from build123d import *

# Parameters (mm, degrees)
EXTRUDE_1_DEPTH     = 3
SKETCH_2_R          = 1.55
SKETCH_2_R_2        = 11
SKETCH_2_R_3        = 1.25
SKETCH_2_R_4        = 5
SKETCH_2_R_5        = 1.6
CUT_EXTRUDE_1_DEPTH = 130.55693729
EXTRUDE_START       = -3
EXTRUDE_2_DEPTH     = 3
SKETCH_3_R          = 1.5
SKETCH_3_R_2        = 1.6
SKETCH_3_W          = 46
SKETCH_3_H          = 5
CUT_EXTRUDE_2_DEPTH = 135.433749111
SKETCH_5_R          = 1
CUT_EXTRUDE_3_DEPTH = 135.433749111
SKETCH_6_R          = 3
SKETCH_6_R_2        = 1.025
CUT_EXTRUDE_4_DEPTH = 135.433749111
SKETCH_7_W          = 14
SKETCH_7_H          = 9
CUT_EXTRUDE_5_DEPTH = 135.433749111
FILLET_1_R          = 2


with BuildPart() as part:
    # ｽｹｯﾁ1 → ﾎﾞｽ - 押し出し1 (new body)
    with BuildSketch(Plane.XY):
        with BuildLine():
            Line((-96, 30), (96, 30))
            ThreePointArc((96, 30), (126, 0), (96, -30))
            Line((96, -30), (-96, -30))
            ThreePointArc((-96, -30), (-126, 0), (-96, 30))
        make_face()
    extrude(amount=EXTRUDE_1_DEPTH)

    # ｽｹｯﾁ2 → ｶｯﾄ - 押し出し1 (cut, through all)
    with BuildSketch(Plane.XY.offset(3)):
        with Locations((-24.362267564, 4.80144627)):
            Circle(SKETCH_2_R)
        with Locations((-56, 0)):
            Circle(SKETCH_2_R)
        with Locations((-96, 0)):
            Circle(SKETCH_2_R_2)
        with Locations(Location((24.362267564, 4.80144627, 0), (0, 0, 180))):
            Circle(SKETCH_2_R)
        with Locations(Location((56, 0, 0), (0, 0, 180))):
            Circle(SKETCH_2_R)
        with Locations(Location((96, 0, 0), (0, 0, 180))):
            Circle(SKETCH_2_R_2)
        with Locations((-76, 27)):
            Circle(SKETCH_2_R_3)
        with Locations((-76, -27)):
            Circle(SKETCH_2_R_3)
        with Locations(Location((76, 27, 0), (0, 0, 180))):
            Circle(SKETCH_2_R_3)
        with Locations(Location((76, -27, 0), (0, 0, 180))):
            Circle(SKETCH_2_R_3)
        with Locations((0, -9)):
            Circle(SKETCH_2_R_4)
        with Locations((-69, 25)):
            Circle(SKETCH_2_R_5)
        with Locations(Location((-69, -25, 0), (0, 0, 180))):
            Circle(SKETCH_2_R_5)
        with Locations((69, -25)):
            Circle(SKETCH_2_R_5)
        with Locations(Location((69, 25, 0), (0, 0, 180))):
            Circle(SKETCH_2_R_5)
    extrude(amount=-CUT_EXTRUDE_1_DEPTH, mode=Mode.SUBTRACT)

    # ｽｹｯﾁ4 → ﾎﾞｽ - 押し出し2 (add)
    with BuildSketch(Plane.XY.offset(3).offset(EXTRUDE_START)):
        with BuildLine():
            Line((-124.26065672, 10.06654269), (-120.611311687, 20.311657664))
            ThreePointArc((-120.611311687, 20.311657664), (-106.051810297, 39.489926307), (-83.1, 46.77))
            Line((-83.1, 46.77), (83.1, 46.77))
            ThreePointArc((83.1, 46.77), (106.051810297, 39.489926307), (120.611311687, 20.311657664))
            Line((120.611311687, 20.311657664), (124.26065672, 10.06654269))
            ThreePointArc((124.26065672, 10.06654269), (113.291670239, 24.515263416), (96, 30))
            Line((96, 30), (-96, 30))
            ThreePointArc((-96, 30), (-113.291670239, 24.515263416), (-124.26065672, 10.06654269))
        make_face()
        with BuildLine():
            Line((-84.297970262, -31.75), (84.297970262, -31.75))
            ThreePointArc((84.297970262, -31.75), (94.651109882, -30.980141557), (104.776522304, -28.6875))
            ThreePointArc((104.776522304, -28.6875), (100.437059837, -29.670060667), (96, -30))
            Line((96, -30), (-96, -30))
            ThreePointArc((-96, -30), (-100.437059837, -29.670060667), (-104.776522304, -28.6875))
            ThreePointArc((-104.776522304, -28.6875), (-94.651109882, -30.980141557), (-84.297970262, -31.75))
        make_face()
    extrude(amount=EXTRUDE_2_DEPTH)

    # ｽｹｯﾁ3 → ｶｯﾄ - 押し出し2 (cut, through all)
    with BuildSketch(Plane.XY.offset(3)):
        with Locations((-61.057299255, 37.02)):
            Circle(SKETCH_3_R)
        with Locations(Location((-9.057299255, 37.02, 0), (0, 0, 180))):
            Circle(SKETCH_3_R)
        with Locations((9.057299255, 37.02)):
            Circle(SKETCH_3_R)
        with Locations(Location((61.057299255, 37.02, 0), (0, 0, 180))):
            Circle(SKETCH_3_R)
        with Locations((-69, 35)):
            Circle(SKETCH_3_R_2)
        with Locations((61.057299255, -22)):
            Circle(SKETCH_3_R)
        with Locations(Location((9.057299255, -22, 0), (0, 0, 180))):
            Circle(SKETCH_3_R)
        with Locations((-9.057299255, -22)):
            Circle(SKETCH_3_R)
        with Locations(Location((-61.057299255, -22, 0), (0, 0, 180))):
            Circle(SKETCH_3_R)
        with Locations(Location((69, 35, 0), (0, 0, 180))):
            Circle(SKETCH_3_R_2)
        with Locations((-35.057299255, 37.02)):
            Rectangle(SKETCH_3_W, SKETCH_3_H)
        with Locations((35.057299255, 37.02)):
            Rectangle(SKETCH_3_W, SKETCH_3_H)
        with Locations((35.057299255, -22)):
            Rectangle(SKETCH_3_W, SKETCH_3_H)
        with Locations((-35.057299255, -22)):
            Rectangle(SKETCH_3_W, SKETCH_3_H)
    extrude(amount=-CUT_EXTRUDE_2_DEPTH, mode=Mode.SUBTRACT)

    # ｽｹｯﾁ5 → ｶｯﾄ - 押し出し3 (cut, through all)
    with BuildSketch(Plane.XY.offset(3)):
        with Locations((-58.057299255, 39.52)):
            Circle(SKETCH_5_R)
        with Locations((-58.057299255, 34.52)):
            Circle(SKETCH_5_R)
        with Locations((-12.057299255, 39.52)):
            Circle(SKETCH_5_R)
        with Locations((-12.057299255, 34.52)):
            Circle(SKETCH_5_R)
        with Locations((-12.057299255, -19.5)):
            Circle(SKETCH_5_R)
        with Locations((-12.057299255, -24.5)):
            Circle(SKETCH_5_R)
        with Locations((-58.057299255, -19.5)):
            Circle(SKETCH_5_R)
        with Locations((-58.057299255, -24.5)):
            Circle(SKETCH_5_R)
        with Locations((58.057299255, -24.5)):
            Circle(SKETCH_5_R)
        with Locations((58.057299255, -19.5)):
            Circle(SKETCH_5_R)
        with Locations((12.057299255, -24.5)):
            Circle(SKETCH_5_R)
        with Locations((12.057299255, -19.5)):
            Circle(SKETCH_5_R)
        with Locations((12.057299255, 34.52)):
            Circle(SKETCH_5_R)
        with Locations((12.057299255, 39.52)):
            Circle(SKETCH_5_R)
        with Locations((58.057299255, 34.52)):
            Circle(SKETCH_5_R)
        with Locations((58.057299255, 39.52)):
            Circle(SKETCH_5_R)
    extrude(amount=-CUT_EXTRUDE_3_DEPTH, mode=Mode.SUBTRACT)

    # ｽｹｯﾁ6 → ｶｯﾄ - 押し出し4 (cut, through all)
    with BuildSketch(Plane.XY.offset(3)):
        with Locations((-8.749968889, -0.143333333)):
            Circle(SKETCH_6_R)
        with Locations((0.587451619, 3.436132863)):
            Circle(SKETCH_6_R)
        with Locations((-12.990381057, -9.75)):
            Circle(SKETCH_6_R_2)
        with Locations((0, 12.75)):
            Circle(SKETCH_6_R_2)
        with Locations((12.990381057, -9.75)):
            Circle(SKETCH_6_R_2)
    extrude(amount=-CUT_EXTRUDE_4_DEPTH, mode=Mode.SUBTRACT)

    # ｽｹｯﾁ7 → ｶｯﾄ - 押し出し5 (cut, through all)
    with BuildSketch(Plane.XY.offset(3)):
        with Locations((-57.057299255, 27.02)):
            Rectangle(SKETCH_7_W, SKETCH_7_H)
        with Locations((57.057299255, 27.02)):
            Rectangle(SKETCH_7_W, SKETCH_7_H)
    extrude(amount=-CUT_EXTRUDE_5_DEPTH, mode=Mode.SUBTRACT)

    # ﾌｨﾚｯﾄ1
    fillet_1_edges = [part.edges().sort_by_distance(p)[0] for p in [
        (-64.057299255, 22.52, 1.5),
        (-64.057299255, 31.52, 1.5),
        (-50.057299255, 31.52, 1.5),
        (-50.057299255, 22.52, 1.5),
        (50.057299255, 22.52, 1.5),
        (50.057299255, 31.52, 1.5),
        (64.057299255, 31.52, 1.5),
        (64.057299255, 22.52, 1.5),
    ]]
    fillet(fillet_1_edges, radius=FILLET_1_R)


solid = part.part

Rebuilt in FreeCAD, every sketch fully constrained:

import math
import FreeCAD as App
import Part
import Sketcher
from FreeCAD import Vector
Q = App.Units.Quantity


def edges_at(feature, points):
    """Names of the edges that pass closest to the given points."""
    edges = feature.Shape.Edges
    near = lambda p: min(range(len(edges)), key=lambda i: edges[i].distToShape(Part.Vertex(*p))[0])
    return sorted({f"Edge{near(p) + 1}" for p in points})


def add_polygon(sketch, points):
    """Adds a closed chain of lines whose ends are joined by coincident constraints."""
    first, n = sketch.GeometryCount, len(points)
    for a, b in zip(points, points[1:] + points[:1]):
        sketch.addGeometry(Part.LineSegment(App.Vector(*a, 0), App.Vector(*b, 0)), False)
    for i in range(n):
        sketch.addConstraint(Sketcher.Constraint("Coincident", first + i, 2, first + (i + 1) % n, 1))

doc = App.newDocument("Part")
body = doc.addObject("PartDesign::Body", "Body")

# Sketch on XY plane
sketch1 = body.newObject("Sketcher::SketchObject", "Sketch")
sketch1.AttachmentSupport = (doc.getObject("XY_Plane"), [""])
sketch1.MapMode = "FlatFace"
sketch1.addGeometry([
    Part.LineSegment(Vector(96, 30, 0), Vector(-96, 30, 0)),
    Part.ArcOfCircle(Part.Circle(Vector(-96, 0, 0), Vector(0, 0, 1), 30), math.radians(90), math.radians(270)),
    Part.LineSegment(Vector(-96, -30, 0), Vector(96, -30, 0)),
    Part.ArcOfCircle(Part.Circle(Vector(96, 0, 0), Vector(0, 0, 1), 30), math.radians(-90), math.radians(90)),
], False)
sketch1.addConstraint([
    Sketcher.Constraint("Tangent", 0, 2, 1, 1),
    Sketcher.Constraint("Tangent", 1, 2, 2, 1),
    Sketcher.Constraint("Tangent", 2, 2, 3, 1),
    Sketcher.Constraint("Tangent", 3, 2, 0, 1),
    Sketcher.Constraint("Horizontal", 0),
    Sketcher.Constraint("Horizontal", 2),
    Sketcher.Constraint("Symmetric", 1, 3, 3, 3, -1, 1),
    Sketcher.Constraint("Radius", 1, Q("30 mm")),
    Sketcher.Constraint("DistanceX", 0, 2, 0, 1, Q("192 mm")),
])
pad1 = body.newObject("PartDesign::Pad", "Pad")
pad1.Profile = sketch1
pad1.Length = 3

# Sketch on XY plane
sketch2 = body.newObject("Sketcher::SketchObject", "Sketch001")
sketch2.AttachmentSupport = (doc.getObject("XY_Plane"), [""])
sketch2.MapMode = "FlatFace"
sketch2.AttachmentOffset = App.Placement(Vector(0, 0, 3), App.Rotation())
sketch2.addGeometry([
    Part.Circle(Vector(-24.362268, 4.801446, 0), Vector(0, 0, 1), 1.55),  # 0
    Part.Circle(Vector(-56, 0, 0), Vector(0, 0, 1), 1.55),  # 1
    Part.Circle(Vector(-96, 0, 0), Vector(0, 0, 1), 11),  # 2
    Part.Circle(Vector(24.362268, 4.801446, 0), Vector(0, 0, 1), 1.55),  # 3
    Part.Circle(Vector(56, 0, 0), Vector(0, 0, 1), 1.55),  # 4
    Part.Circle(Vector(96, 0, 0), Vector(0, 0, 1), 11),  # 5
    Part.Circle(Vector(-76, 27, 0), Vector(0, 0, 1), 1.25),  # 6
    Part.Circle(Vector(-76, -27, 0), Vector(0, 0, 1), 1.25),  # 7
    Part.Circle(Vector(76, 27, 0), Vector(0, 0, 1), 1.25),  # 8
    Part.Circle(Vector(76, -27, 0), Vector(0, 0, 1), 1.25),  # 9
    Part.Circle(Vector(0, -9, 0), Vector(0, 0, 1), 5),  # 10
    Part.Circle(Vector(-69, 25, 0), Vector(0, 0, 1), 1.6),  # 11
    Part.Circle(Vector(-69, -25, 0), Vector(0, 0, 1), 1.6),  # 12
    Part.Circle(Vector(69, -25, 0), Vector(0, 0, 1), 1.6),  # 13
    Part.Circle(Vector(69, 25, 0), Vector(0, 0, 1), 1.6),  # 14
], False)
sketch2.addConstraint([
    Sketcher.Constraint("Equal", 0, 1),
    Sketcher.Constraint("Equal", 1, 3),
    Sketcher.Constraint("Equal", 3, 4),
    Sketcher.Constraint("Equal", 2, 5),
    Sketcher.Constraint("Equal", 6, 7),
    Sketcher.Constraint("Equal", 7, 8),
    Sketcher.Constraint("Equal", 8, 9),
    Sketcher.Constraint("Equal", 11, 12),
    Sketcher.Constraint("Equal", 12, 13),
    Sketcher.Constraint("Equal", 13, 14),
    Sketcher.Constraint("Symmetric", 1, 3, 4, 3, -1, 1),
    Sketcher.Constraint("Symmetric", 2, 3, 5, 3, -1, 1),
    Sketcher.Constraint("Symmetric", 7, 3, 8, 3, -1, 1),
    Sketcher.Constraint("Symmetric", 6, 3, 9, 3, -1, 1),
    Sketcher.Constraint("Symmetric", 11, 3, 13, 3, -1, 1),
    Sketcher.Constraint("Symmetric", 12, 3, 14, 3, -1, 1),
    Sketcher.Constraint("Symmetric", 0, 3, 3, 3, -2),
    Sketcher.Constraint("Symmetric", 6, 3, 8, 3, -2),
    Sketcher.Constraint("Symmetric", 12, 3, 13, 3, -2),
    Sketcher.Constraint("PointOnObject", 1, 3, -1),
    Sketcher.Constraint("PointOnObject", 2, 3, -1),
    Sketcher.Constraint("PointOnObject", 10, 3, -2),
    Sketcher.Constraint("Diameter", 2, Q("22 mm")),
    Sketcher.Constraint("Diameter", 10, Q("10 mm")),
    Sketcher.Constraint("Diameter", 0, Q("3.1 mm")),
    Sketcher.Constraint("Diameter", 6, Q("2.5 mm")),
    Sketcher.Constraint("Diameter", 11, Q("3.2 mm")),
    Sketcher.Constraint("DistanceX", 1, 3, -1, 1, Q("56 mm")),
    Sketcher.Constraint("DistanceX", 2, 3, -1, 1, Q("96 mm")),
    Sketcher.Constraint("DistanceX", 6, 3, -1, 1, Q("76 mm")),
    Sketcher.Constraint("DistanceY", -1, 1, 6, 3, Q("27 mm")),
    Sketcher.Constraint("DistanceY", 10, 3, -1, 1, Q("9 mm")),
    Sketcher.Constraint("DistanceX", 11, 3, -1, 1, Q("69 mm")),
    Sketcher.Constraint("DistanceY", -1, 1, 11, 3, Q("25 mm")),
    Sketcher.Constraint("DistanceX", 0, 3, -1, 1, Q("24.362268 mm")),
    Sketcher.Constraint("DistanceY", -1, 1, 0, 3, Q("4.801446 mm")),
])
pocket1 = body.newObject("PartDesign::Pocket", "Pocket")
pocket1.Profile = sketch2
pocket1.Type = "ThroughAll"

# Sketch on XY plane
sketch3 = body.newObject("Sketcher::SketchObject", "Sketch002")
sketch3.AttachmentSupport = (doc.getObject("XY_Plane"), [""])
sketch3.MapMode = "FlatFace"
sketch3.addGeometry([
    Part.LineSegment(Vector(-120.611312, 20.311658, 0), Vector(-124.260657, 10.066543, 0)),  # 0
    Part.ArcOfCircle(Part.Circle(Vector(-96, 0, 0), Vector(0, 0, 1), 30), math.radians(90), math.radians(160.393927)),  # 1
    Part.LineSegment(Vector(-96, 30, 0), Vector(96, 30, 0)),  # 2
    Part.ArcOfCircle(Part.Circle(Vector(96, 0, 0), Vector(0, 0, 1), 30), math.radians(19.606073), math.radians(90)),  # 3
    Part.LineSegment(Vector(124.260657, 10.066543, 0), Vector(120.611312, 20.311658, 0)),  # 4
    Part.ArcOfCircle(Part.Circle(Vector(83.1, 6.95, 0), Vector(0, 0, 1), 39.82), math.radians(19.606073), math.radians(90)),  # 5
    Part.LineSegment(Vector(83.1, 46.77, 0), Vector(-83.1, 46.77, 0)),  # 6
    Part.ArcOfCircle(Part.Circle(Vector(-83.1, 6.95, 0), Vector(0, 0, 1), 39.82), math.radians(90), math.radians(160.393927)),  # 7
    Part.LineSegment(Vector(-84.29797, -31.75, 0), Vector(84.29797, -31.75, 0)),  # 8
    Part.ArcOfCircle(Part.Circle(Vector(84.29797, 38.25, 0), Vector(0, 0, 1), 70), math.radians(-90), math.radians(-72.989273)),  # 9
    Part.ArcOfCircle(Part.Circle(Vector(96, 0, 0), Vector(0, 0, 1), 30), math.radians(-90), math.radians(-72.989273)),  # 10
    Part.LineSegment(Vector(96, -30, 0), Vector(-96, -30, 0)),  # 11
    Part.ArcOfCircle(Part.Circle(Vector(-96, 0, 0), Vector(0, 0, 1), 30), math.radians(-107.010727), math.radians(-90)),  # 12
    Part.ArcOfCircle(Part.Circle(Vector(-84.29797, 38.25, 0), Vector(0, 0, 1), 70), math.radians(-107.010727), math.radians(-90)),  # 13
], False)
sketch3.addConstraint([
    Sketcher.Constraint("Tangent", 0, 2, 1, 2),
    Sketcher.Constraint("Tangent", 1, 1, 2, 1),
    Sketcher.Constraint("Tangent", 2, 2, 3, 2),
    Sketcher.Constraint("Tangent", 3, 1, 4, 1),
    Sketcher.Constraint("Tangent", 4, 2, 5, 1),
    Sketcher.Constraint("Tangent", 5, 2, 6, 1),
    Sketcher.Constraint("Tangent", 6, 2, 7, 1),
    Sketcher.Constraint("Tangent", 7, 2, 0, 1),
    Sketcher.Constraint("Tangent", 8, 2, 9, 1),
    Sketcher.Constraint("Tangent", 9, 2, 10, 2),
    Sketcher.Constraint("Tangent", 10, 1, 11, 1),
    Sketcher.Constraint("Tangent", 11, 2, 12, 2),
    Sketcher.Constraint("Tangent", 12, 1, 13, 1),
    Sketcher.Constraint("Tangent", 13, 2, 8, 1),
    Sketcher.Constraint("Horizontal", 2),
    Sketcher.Constraint("Horizontal", 6),
    Sketcher.Constraint("Horizontal", 8),
    Sketcher.Constraint("Horizontal", 11),
    Sketcher.Constraint("Coincident", 10, 3, 3, 3),
    Sketcher.Constraint("Coincident", 12, 3, 1, 3),
    Sketcher.Constraint("Equal", 1, 3),
    Sketcher.Constraint("Equal", 5, 7),
    Sketcher.Constraint("Equal", 3, 10),
    Sketcher.Constraint("Equal", 9, 13),
    Sketcher.Constraint("Symmetric", 1, 3, 3, 3, -1, 1),
    Sketcher.Constraint("Horizontal", 0, 2, 3, 1),
    Sketcher.Constraint("Radius", 1, Q("30 mm")),
    Sketcher.Constraint("Radius", 9, Q("70 mm")),
    Sketcher.Constraint("DistanceX", 2, 1, 2, 2, Q("192 mm")),
    Sketcher.Constraint("Radius", 5, Q("39.82 mm")),
    Sketcher.Constraint("DistanceX", 6, 2, 6, 1, Q("166.2 mm")),
    Sketcher.Constraint("DistanceY", 5, 3, 9, 3, Q("31.3 mm")),
    Sketcher.Constraint("DistanceY", -1, 1, 5, 3, Q("6.95 mm")),
])
pad2 = body.newObject("PartDesign::Pad", "Pad001")
pad2.Profile = sketch3
pad2.Length = 3

# Sketch on XY plane
sketch4 = body.newObject("Sketcher::SketchObject", "Sketch003")
sketch4.AttachmentSupport = (doc.getObject("XY_Plane"), [""])
sketch4.MapMode = "FlatFace"
sketch4.AttachmentOffset = App.Placement(Vector(0, 0, 3), App.Rotation())
sketch4.addGeometry(Part.Circle(Vector(-61.057299, 37.02, 0), Vector(0, 0, 1), 1.5), False)  # 0
sketch4.addGeometry(Part.Circle(Vector(-9.057299, 37.02, 0), Vector(0, 0, 1), 1.5), False)  # 1
sketch4.addGeometry(Part.Circle(Vector(9.057299, 37.02, 0), Vector(0, 0, 1), 1.5), False)  # 2
sketch4.addGeometry(Part.Circle(Vector(61.057299, 37.02, 0), Vector(0, 0, 1), 1.5), False)  # 3
sketch4.addGeometry(Part.Circle(Vector(-69, 35, 0), Vector(0, 0, 1), 1.6), False)  # 4
sketch4.addGeometry(Part.Circle(Vector(61.057299, -22, 0), Vector(0, 0, 1), 1.5), False)  # 5
sketch4.addGeometry(Part.Circle(Vector(9.057299, -22, 0), Vector(0, 0, 1), 1.5), False)  # 6
sketch4.addGeometry(Part.Circle(Vector(-9.057299, -22, 0), Vector(0, 0, 1), 1.5), False)  # 7
sketch4.addGeometry(Part.Circle(Vector(-61.057299, -22, 0), Vector(0, 0, 1), 1.5), False)  # 8
sketch4.addGeometry(Part.Circle(Vector(69, 35, 0), Vector(0, 0, 1), 1.6), False)  # 9
add_polygon(sketch4, [(-58.057299, 39.52), (-58.057299, 34.52), (-12.057299, 34.52), (-12.057299, 39.52)])  # lines 10-13
add_polygon(sketch4, [(12.057299, 39.52), (12.057299, 34.52), (58.057299, 34.52), (58.057299, 39.52)])  # lines 14-17
add_polygon(sketch4, [(12.057299, -19.5), (12.057299, -24.5), (58.057299, -24.5), (58.057299, -19.5)])  # lines 18-21
add_polygon(sketch4, [(-58.057299, -19.5), (-58.057299, -24.5), (-12.057299, -24.5), (-12.057299, -19.5)])  # lines 22-25
sketch4.addConstraint([
    Sketcher.Constraint("Vertical", 10),
    Sketcher.Constraint("Horizontal", 11),
    Sketcher.Constraint("Vertical", 12),
    Sketcher.Constraint("Horizontal", 13),
    Sketcher.Constraint("Vertical", 14),
    Sketcher.Constraint("Horizontal", 15),
    Sketcher.Constraint("Vertical", 16),
    Sketcher.Constraint("Horizontal", 17),
    Sketcher.Constraint("Vertical", 18),
    Sketcher.Constraint("Horizontal", 19),
    Sketcher.Constraint("Vertical", 20),
    Sketcher.Constraint("Horizontal", 21),
    Sketcher.Constraint("Vertical", 22),
    Sketcher.Constraint("Horizontal", 23),
    Sketcher.Constraint("Vertical", 24),
    Sketcher.Constraint("Horizontal", 25),
    Sketcher.Constraint("Equal", 0, 1),
    Sketcher.Constraint("Equal", 1, 2),
    Sketcher.Constraint("Equal", 2, 3),
    Sketcher.Constraint("Equal", 3, 5),
    Sketcher.Constraint("Equal", 5, 6),
    Sketcher.Constraint("Equal", 6, 7),
    Sketcher.Constraint("Equal", 7, 8),
    Sketcher.Constraint("Equal", 4, 9),
    Sketcher.Constraint("Symmetric", 1, 3, 2, 3, -2),
    Sketcher.Constraint("Symmetric", 0, 3, 3, 3, -2),
    Sketcher.Constraint("Symmetric", 6, 3, 7, 3, -2),
    Sketcher.Constraint("Symmetric", 5, 3, 8, 3, -2),
    Sketcher.Constraint("Symmetric", 4, 3, 9, 3, -2),
    Sketcher.Constraint("Symmetric", 11, 2, 14, 2, -2),
    Sketcher.Constraint("Symmetric", 13, 2, 16, 2, -2),
    Sketcher.Constraint("Symmetric", 19, 2, 22, 2, -2),
    Sketcher.Constraint("Symmetric", 21, 2, 24, 2, -2),
    Sketcher.Constraint("Horizontal", 0, 3, 1, 3),
    Sketcher.Constraint("Horizontal", 5, 3, 6, 3),
    Sketcher.Constraint("Vertical", 3, 3, 5, 3),
    Sketcher.Constraint("Vertical", 2, 3, 6, 3),
    Sketcher.Constraint("Vertical", 17, 2, 18, 2),
    Sketcher.Constraint("Vertical", 16, 2, 19, 2),
    Sketcher.Constraint("Equal", 16, 18),
    Sketcher.Constraint("Diameter", 0, Q("3 mm")),
    Sketcher.Constraint("Diameter", 4, Q("3.2 mm")),
    Sketcher.Constraint("DistanceX", 11, 1, 11, 2, Q("46 mm")),
    Sketcher.Constraint("DistanceY", 10, 2, 10, 1, Q("5 mm")),
    Sketcher.Constraint("DistanceX", 4, 3, -1, 1, Q("69 mm")),
    Sketcher.Constraint("DistanceY", -1, 1, 4, 3, Q("35 mm")),
    Sketcher.Constraint("DistanceY", 5, 3, -1, 1, Q("22 mm")),
    Sketcher.Constraint("DistanceX", 0, 3, 1, 3, Q("52 mm")),
    Sketcher.Constraint("DistanceX", 0, 3, 10, 2, Q("3 mm")),
    Sketcher.Constraint("DistanceY", 18, 2, -1, 1, Q("24.5 mm")),
    Sketcher.Constraint("DistanceY", 10, 2, 0, 3, Q("2.5 mm")),
    Sketcher.Constraint("DistanceY", -1, 1, 0, 3, Q("37.02 mm")),
    Sketcher.Constraint("DistanceX", 0, 3, -1, 1, Q("61.057299 mm")),
])
pocket2 = body.newObject("PartDesign::Pocket", "Pocket001")
pocket2.Profile = sketch4
pocket2.Type = "ThroughAll"

# Sketch on XY plane
sketch5 = body.newObject("Sketcher::SketchObject", "Sketch004")
sketch5.AttachmentSupport = (doc.getObject("XY_Plane"), [""])
sketch5.MapMode = "FlatFace"
sketch5.AttachmentOffset = App.Placement(Vector(0, 0, 3), App.Rotation())
sketch5.addGeometry([
    Part.Circle(Vector(-58.057299, 39.52, 0), Vector(0, 0, 1), 1),  # 0
    Part.Circle(Vector(-58.057299, 34.52, 0), Vector(0, 0, 1), 1),  # 1
    Part.Circle(Vector(-12.057299, 39.52, 0), Vector(0, 0, 1), 1),  # 2
    Part.Circle(Vector(-12.057299, 34.52, 0), Vector(0, 0, 1), 1),  # 3
    Part.Circle(Vector(-12.057299, -19.5, 0), Vector(0, 0, 1), 1),  # 4
    Part.Circle(Vector(-12.057299, -24.5, 0), Vector(0, 0, 1), 1),  # 5
    Part.Circle(Vector(-58.057299, -19.5, 0), Vector(0, 0, 1), 1),  # 6
    Part.Circle(Vector(-58.057299, -24.5, 0), Vector(0, 0, 1), 1),  # 7
    Part.Circle(Vector(58.057299, -24.5, 0), Vector(0, 0, 1), 1),  # 8
    Part.Circle(Vector(58.057299, -19.5, 0), Vector(0, 0, 1), 1),  # 9
    Part.Circle(Vector(12.057299, -24.5, 0), Vector(0, 0, 1), 1),  # 10
    Part.Circle(Vector(12.057299, -19.5, 0), Vector(0, 0, 1), 1),  # 11
    Part.Circle(Vector(12.057299, 34.52, 0), Vector(0, 0, 1), 1),  # 12
    Part.Circle(Vector(12.057299, 39.52, 0), Vector(0, 0, 1), 1),  # 13
    Part.Circle(Vector(58.057299, 34.52, 0), Vector(0, 0, 1), 1),  # 14
    Part.Circle(Vector(58.057299, 39.52, 0), Vector(0, 0, 1), 1),  # 15
], False)
sketch5.addConstraint([
    Sketcher.Constraint("Equal", 0, 1),
    Sketcher.Constraint("Equal", 1, 2),
    Sketcher.Constraint("Equal", 2, 3),
    Sketcher.Constraint("Equal", 3, 4),
    Sketcher.Constraint("Equal", 4, 5),
    Sketcher.Constraint("Equal", 5, 6),
    Sketcher.Constraint("Equal", 6, 7),
    Sketcher.Constraint("Equal", 7, 8),
    Sketcher.Constraint("Equal", 8, 9),
    Sketcher.Constraint("Equal", 9, 10),
    Sketcher.Constraint("Equal", 10, 11),
    Sketcher.Constraint("Equal", 11, 12),
    Sketcher.Constraint("Equal", 12, 13),
    Sketcher.Constraint("Equal", 13, 14),
    Sketcher.Constraint("Equal", 14, 15),
    Sketcher.Constraint("Symmetric", 7, 3, 8, 3, -2),
    Sketcher.Constraint("Symmetric", 6, 3, 9, 3, -2),
    Sketcher.Constraint("Symmetric", 5, 3, 10, 3, -2),
    Sketcher.Constraint("Symmetric", 4, 3, 11, 3, -2),
    Sketcher.Constraint("Symmetric", 3, 3, 12, 3, -2),
    Sketcher.Constraint("Symmetric", 2, 3, 13, 3, -2),
    Sketcher.Constraint("Symmetric", 1, 3, 14, 3, -2),
    Sketcher.Constraint("Symmetric", 0, 3, 15, 3, -2),
    Sketcher.Constraint("Horizontal", 0, 3, 2, 3),
    Sketcher.Constraint("Horizontal", 1, 3, 3, 3),
    Sketcher.Constraint("Horizontal", 4, 3, 6, 3),
    Sketcher.Constraint("Horizontal", 5, 3, 7, 3),
    Sketcher.Constraint("Vertical", 0, 3, 1, 3),
    Sketcher.Constraint("Vertical", 2, 3, 3, 3),
    Sketcher.Constraint("Vertical", 3, 3, 4, 3),
    Sketcher.Constraint("Vertical", 4, 3, 5, 3),
    Sketcher.Constraint("Vertical", 1, 3, 6, 3),
    Sketcher.Constraint("Vertical", 6, 3, 7, 3),
    Sketcher.Constraint("Diameter", 0, Q("2 mm")),
    Sketcher.Constraint("DistanceY", 1, 3, 0, 3, Q("5 mm")),
    Sketcher.Constraint("DistanceX", 0, 3, 2, 3, Q("46 mm")),
    Sketcher.Constraint("DistanceY", 5, 3, 4, 3, Q("5 mm")),
    Sketcher.Constraint("DistanceY", 4, 3, -1, 1, Q("19.5 mm")),
    Sketcher.Constraint("DistanceY", -1, 1, 0, 3, Q("39.52 mm")),
    Sketcher.Constraint("DistanceX", 0, 3, -1, 1, Q("58.057299 mm")),
])
pocket3 = body.newObject("PartDesign::Pocket", "Pocket002")
pocket3.Profile = sketch5
pocket3.Type = "ThroughAll"

# Sketch on XY plane
sketch6 = body.newObject("Sketcher::SketchObject", "Sketch005")
sketch6.AttachmentSupport = (doc.getObject("XY_Plane"), [""])
sketch6.MapMode = "FlatFace"
sketch6.AttachmentOffset = App.Placement(Vector(0, 0, 3), App.Rotation())
sketch6.addGeometry([
    Part.Circle(Vector(-8.749969, -0.143333, 0), Vector(0, 0, 1), 3),  # 0
    Part.Circle(Vector(0.587452, 3.436133, 0), Vector(0, 0, 1), 3),  # 1
    Part.Circle(Vector(-12.990381, -9.75, 0), Vector(0, 0, 1), 1.025),  # 2
    Part.Circle(Vector(0, 12.75, 0), Vector(0, 0, 1), 1.025),  # 3
    Part.Circle(Vector(12.990381, -9.75, 0), Vector(0, 0, 1), 1.025),  # 4
], False)
sketch6.addConstraint([
    Sketcher.Constraint("Equal", 0, 1),
    Sketcher.Constraint("Equal", 2, 3),
    Sketcher.Constraint("Equal", 3, 4),
    Sketcher.Constraint("Symmetric", 2, 3, 4, 3, -2),
    Sketcher.Constraint("PointOnObject", 3, 3, -2),
    Sketcher.Constraint("Diameter", 0, Q("6 mm")),
    Sketcher.Constraint("Diameter", 2, Q("2.05 mm")),
    Sketcher.Constraint("DistanceY", 2, 3, 3, 3, Q("22.5 mm")),
    Sketcher.Constraint("DistanceY", 2, 3, -1, 1, Q("9.75 mm")),
    Sketcher.Constraint("DistanceX", 0, 3, -1, 1, Q("8.749969 mm")),
    Sketcher.Constraint("DistanceX", -1, 1, 1, 3, Q("0.587452 mm")),
    Sketcher.Constraint("DistanceX", 2, 3, -1, 1, Q("12.990381 mm")),
    Sketcher.Constraint("DistanceY", 0, 3, -1, 1, Q("0.143333 mm")),
    Sketcher.Constraint("DistanceY", -1, 1, 1, 3, Q("3.436133 mm")),
])
pocket4 = body.newObject("PartDesign::Pocket", "Pocket003")
pocket4.Profile = sketch6
pocket4.Type = "ThroughAll"

# Sketch on XY plane
sketch7 = body.newObject("Sketcher::SketchObject", "Sketch006")
sketch7.AttachmentSupport = (doc.getObject("XY_Plane"), [""])
sketch7.MapMode = "FlatFace"
sketch7.AttachmentOffset = App.Placement(Vector(0, 0, 3), App.Rotation())
add_polygon(sketch7, [(-64.057299, 31.52), (-64.057299, 22.52), (-50.057299, 22.52), (-50.057299, 31.52)])  # lines 0-3
add_polygon(sketch7, [(50.057299, 31.52), (50.057299, 22.52), (64.057299, 22.52), (64.057299, 31.52)])  # lines 4-7
sketch7.addConstraint([
    Sketcher.Constraint("Vertical", 0),
    Sketcher.Constraint("Horizontal", 1),
    Sketcher.Constraint("Vertical", 2),
    Sketcher.Constraint("Horizontal", 3),
    Sketcher.Constraint("Vertical", 4),
    Sketcher.Constraint("Horizontal", 5),
    Sketcher.Constraint("Vertical", 6),
    Sketcher.Constraint("Horizontal", 7),
    Sketcher.Constraint("Symmetric", 1, 2, 4, 2, -2),
    Sketcher.Constraint("Symmetric", 3, 2, 6, 2, -2),
    Sketcher.Constraint("DistanceX", 1, 1, 1, 2, Q("14 mm")),
    Sketcher.Constraint("DistanceY", 0, 2, 0, 1, Q("9 mm")),
    Sketcher.Constraint("DistanceY", -1, 1, 0, 2, Q("22.52 mm")),
    Sketcher.Constraint("DistanceX", 0, 2, -1, 1, Q("64.057299 mm")),
])
pocket5 = body.newObject("PartDesign::Pocket", "Pocket004")
pocket5.Profile = sketch7
pocket5.Type = "ThroughAll"
doc.recompute()

fillet = body.newObject("PartDesign::Fillet", "Fillet")
fillet.Base = (pocket5, edges_at(pocket5, [
    (-64.057, 22.52, 1.5),
    (-64.057, 31.52, 1.5),
    (-50.057, 31.52, 1.5),
    (-50.057, 22.52, 1.5),
    (50.057, 22.52, 1.5),
    (50.057, 31.52, 1.5),
    (64.057, 31.52, 1.5),
    (64.057, 22.52, 1.5),
]))
fillet.Radius = 2

doc.recompute()
